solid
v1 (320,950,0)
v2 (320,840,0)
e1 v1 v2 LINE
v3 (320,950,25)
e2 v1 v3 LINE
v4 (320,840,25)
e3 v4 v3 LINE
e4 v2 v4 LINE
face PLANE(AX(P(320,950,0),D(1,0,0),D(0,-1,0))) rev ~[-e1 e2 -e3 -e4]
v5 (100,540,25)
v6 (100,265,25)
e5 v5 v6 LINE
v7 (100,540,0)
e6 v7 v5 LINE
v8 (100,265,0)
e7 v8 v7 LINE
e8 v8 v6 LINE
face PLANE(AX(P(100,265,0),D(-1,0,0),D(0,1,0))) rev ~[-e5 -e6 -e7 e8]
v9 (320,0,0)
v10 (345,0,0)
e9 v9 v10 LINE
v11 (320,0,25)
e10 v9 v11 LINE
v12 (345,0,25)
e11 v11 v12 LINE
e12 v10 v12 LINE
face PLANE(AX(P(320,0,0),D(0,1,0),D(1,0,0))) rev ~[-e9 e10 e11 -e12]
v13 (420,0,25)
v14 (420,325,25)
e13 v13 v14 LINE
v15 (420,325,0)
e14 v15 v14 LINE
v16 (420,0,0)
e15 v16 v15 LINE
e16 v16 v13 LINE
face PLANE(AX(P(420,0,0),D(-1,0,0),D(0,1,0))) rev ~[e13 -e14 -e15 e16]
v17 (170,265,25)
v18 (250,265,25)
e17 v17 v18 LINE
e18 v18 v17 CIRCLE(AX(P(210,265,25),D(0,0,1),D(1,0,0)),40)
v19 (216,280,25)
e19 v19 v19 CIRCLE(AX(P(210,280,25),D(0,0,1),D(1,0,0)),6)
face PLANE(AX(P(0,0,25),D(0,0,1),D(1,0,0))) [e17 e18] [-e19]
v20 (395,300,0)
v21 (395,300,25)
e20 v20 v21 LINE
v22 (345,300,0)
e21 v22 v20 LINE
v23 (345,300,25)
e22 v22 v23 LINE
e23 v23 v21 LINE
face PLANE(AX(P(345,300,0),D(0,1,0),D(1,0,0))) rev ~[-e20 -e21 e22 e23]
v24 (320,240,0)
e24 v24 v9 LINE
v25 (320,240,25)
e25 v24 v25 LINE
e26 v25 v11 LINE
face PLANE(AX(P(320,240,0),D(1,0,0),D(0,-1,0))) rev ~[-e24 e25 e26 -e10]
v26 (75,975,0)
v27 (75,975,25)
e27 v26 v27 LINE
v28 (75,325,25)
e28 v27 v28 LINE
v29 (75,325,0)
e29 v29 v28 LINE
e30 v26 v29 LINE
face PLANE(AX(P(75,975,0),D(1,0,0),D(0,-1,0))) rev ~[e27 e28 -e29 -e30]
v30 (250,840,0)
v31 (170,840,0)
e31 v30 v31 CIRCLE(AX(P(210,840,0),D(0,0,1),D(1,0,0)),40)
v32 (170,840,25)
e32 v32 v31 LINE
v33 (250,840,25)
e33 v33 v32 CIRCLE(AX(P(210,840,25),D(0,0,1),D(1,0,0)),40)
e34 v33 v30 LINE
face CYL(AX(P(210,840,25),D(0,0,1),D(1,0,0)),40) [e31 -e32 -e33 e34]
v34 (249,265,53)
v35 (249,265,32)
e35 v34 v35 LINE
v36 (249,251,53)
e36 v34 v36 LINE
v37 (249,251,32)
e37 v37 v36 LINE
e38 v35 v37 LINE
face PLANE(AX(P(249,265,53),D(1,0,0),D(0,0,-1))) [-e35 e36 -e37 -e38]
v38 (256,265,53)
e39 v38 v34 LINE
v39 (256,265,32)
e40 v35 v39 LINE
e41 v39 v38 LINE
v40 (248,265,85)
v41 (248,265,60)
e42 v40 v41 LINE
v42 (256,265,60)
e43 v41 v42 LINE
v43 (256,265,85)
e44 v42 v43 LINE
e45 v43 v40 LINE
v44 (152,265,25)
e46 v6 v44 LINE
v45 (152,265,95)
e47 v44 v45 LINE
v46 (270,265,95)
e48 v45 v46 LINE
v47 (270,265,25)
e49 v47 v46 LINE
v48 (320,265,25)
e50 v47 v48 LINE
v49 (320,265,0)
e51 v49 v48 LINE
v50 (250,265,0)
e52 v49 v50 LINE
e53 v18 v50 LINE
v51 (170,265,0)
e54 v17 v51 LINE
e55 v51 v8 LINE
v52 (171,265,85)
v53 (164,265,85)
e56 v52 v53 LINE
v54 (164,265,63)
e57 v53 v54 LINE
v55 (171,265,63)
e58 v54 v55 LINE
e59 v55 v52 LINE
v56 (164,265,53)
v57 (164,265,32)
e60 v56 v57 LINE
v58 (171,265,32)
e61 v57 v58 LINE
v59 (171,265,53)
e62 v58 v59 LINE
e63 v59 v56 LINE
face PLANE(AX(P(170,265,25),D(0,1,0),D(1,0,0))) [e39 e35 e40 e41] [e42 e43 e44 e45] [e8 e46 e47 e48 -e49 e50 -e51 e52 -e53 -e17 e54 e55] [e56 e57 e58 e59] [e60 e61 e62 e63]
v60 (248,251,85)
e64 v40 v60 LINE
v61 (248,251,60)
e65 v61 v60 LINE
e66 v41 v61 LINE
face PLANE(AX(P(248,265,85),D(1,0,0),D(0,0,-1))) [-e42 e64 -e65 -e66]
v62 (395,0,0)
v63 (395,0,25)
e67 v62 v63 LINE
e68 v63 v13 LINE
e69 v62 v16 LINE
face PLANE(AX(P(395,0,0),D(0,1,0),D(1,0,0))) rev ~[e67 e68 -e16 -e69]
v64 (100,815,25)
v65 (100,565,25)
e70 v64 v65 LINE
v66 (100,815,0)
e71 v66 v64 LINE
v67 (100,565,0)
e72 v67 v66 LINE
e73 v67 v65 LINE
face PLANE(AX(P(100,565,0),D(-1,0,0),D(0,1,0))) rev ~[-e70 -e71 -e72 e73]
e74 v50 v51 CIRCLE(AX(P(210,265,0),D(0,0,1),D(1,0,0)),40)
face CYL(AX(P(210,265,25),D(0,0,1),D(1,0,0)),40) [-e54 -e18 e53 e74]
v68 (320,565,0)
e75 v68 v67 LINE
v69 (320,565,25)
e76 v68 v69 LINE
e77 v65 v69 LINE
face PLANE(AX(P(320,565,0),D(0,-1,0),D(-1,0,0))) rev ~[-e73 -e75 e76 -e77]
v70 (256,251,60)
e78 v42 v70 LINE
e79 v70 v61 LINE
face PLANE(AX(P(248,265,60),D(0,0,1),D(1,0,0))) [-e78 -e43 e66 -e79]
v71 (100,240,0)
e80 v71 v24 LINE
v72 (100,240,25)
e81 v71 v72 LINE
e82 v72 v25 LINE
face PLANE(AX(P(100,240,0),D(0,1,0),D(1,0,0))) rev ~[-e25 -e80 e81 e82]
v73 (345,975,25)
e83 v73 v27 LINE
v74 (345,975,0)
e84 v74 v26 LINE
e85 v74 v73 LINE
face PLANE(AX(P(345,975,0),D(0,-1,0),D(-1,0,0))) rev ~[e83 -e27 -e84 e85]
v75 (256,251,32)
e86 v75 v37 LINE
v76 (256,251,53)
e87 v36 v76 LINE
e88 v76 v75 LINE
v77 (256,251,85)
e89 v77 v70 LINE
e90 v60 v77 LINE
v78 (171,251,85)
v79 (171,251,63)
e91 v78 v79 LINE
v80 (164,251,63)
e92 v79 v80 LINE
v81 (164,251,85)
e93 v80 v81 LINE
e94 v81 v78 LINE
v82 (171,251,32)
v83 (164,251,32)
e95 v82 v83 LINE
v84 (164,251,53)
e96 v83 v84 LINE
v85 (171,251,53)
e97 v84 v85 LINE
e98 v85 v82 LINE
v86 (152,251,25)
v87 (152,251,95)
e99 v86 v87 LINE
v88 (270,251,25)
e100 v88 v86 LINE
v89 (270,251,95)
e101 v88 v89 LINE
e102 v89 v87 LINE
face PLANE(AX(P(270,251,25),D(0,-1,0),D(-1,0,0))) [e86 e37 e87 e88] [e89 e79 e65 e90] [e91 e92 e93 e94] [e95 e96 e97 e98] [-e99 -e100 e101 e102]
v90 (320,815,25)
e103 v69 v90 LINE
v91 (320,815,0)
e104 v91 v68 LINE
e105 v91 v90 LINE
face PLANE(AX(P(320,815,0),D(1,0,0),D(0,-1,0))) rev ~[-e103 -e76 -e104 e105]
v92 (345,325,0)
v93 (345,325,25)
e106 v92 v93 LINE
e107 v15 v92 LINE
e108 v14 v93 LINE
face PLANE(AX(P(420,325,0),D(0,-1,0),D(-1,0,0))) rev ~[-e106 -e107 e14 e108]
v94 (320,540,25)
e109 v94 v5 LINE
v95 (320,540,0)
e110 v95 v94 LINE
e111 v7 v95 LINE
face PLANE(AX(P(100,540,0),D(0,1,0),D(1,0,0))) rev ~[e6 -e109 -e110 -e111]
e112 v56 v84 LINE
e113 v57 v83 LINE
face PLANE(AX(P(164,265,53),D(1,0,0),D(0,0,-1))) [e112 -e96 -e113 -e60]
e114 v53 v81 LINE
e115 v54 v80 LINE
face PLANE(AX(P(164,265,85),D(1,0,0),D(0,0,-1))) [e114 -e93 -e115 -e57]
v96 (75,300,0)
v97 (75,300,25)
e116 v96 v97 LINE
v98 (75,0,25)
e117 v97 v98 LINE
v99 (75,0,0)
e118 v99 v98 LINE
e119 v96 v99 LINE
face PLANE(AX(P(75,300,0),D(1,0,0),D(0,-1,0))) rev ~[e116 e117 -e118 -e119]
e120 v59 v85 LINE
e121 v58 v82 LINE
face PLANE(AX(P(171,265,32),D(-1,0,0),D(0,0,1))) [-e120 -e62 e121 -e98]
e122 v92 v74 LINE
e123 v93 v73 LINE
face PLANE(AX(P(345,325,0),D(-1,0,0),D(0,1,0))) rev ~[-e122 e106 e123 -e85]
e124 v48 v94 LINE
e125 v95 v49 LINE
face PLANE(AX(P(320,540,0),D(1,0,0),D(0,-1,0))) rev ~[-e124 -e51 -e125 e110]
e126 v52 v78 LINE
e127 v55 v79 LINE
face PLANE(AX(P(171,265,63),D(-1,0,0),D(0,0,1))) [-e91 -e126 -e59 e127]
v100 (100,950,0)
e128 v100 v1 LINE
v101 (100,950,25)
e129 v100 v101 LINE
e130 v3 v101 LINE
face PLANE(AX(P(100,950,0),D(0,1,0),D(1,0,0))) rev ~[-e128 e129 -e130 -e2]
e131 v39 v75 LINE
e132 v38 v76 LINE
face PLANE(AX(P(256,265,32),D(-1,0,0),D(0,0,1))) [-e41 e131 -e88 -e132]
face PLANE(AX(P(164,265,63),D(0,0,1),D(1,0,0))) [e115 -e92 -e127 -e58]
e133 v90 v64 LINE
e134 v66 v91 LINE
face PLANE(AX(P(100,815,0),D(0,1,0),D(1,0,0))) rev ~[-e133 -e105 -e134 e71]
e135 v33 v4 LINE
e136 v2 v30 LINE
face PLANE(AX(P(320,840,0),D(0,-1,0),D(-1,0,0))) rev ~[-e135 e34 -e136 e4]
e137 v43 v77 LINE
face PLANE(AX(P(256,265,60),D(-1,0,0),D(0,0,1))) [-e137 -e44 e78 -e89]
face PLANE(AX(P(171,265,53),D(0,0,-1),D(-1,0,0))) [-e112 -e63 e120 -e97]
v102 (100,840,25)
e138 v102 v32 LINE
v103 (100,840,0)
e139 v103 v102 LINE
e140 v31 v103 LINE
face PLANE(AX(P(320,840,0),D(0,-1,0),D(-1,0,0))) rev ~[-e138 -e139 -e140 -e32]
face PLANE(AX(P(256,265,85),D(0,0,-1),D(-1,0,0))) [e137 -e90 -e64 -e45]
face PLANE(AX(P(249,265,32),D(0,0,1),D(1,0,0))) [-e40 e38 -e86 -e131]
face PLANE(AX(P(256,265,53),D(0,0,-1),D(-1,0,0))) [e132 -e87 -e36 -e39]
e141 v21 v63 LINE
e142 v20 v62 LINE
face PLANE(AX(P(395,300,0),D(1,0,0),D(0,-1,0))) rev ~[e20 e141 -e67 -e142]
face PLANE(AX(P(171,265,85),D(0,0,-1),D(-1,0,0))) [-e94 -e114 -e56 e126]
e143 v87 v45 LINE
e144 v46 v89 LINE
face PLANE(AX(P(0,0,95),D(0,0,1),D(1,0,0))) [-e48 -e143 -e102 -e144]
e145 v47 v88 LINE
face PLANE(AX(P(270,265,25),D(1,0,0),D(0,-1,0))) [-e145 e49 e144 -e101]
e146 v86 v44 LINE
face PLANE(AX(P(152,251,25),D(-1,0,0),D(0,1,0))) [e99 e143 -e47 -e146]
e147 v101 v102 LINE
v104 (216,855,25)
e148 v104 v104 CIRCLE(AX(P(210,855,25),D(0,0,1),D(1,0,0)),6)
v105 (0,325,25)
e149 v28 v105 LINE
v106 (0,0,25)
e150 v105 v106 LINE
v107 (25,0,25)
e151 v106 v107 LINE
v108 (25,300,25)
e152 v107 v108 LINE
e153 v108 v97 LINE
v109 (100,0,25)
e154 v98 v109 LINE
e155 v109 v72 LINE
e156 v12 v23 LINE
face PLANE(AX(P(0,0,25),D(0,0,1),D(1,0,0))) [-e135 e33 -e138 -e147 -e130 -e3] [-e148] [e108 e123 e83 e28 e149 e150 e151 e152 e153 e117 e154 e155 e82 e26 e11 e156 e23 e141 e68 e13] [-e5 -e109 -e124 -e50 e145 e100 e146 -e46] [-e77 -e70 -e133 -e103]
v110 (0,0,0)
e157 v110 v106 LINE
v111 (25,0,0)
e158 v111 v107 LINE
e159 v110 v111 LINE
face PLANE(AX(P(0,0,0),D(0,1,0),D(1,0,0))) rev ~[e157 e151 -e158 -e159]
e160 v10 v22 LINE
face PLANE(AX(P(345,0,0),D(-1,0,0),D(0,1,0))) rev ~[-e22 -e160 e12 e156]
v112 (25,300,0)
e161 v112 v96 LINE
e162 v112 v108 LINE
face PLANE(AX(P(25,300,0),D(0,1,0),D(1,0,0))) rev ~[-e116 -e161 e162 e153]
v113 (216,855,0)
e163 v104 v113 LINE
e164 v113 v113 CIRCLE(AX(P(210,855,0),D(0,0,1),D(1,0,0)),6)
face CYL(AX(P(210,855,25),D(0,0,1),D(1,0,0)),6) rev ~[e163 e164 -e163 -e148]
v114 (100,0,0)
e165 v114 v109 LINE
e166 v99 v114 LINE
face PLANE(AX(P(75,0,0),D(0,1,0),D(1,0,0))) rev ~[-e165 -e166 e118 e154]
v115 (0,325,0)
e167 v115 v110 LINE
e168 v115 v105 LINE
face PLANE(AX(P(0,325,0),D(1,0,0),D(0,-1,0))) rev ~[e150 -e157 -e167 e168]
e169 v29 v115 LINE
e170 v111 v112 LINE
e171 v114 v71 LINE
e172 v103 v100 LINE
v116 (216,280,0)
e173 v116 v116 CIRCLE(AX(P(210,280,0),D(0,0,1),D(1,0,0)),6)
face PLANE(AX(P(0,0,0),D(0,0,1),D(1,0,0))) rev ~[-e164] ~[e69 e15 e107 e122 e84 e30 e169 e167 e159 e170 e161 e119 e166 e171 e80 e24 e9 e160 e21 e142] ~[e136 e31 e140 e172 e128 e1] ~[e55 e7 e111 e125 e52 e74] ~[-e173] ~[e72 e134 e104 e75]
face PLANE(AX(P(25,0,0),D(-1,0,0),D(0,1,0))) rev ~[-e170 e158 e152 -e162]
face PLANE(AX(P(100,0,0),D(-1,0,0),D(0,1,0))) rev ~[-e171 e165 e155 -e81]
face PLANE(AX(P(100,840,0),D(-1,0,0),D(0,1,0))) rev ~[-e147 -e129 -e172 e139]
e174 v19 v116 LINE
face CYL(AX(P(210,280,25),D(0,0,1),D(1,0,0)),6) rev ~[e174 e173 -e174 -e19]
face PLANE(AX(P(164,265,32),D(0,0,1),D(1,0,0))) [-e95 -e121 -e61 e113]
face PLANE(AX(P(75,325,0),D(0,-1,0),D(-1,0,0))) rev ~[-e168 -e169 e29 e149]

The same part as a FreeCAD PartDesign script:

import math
import FreeCAD as App
import Part
import Sketcher


def add_polygon(sketch, points):
    """Adds a closed chain of lines whose ends are joined by coincident constraints."""
    first, n = sketch.GeometryCount, len(points)
    for a, b in zip(points, points[1:] + points[:1]):
        sketch.addGeometry(Part.LineSegment(App.Vector(*a, 0), App.Vector(*b, 0)), False)
    for i in range(n):
        sketch.addConstraint(Sketcher.Constraint("Coincident", first + i, 2, first + (i + 1) % n, 1))

doc = App.newDocument("Part")
body = doc.addObject("PartDesign::Body", "Body")

sketch1 = body.newObject("Sketcher::SketchObject", "Sketch")
sketch1.AttachmentSupport = (doc.getObject("XY_Plane"), [""])
sketch1.MapMode = "FlatFace"
add_polygon(sketch1, [(0, 325), (0, 0), (25, 0), (25, 300), (75, 300), (75, 0), (100, 0), (100, 240), (320, 240), (320, 0), (345, 0), (345, 300), (395, 300), (395, 0), (420, 0), (420, 325), (345, 325), (345, 975), (75, 975), (75, 325)])
sketch1.addConstraint([
    Sketcher.Constraint("Vertical", 0),
    Sketcher.Constraint("Horizontal", 1),
    Sketcher.Constraint("Vertical", 2),
    Sketcher.Constraint("Horizontal", 3),
    Sketcher.Constraint("Vertical", 4),
    Sketcher.Constraint("Horizontal", 5),
    Sketcher.Constraint("Vertical", 6),
    Sketcher.Constraint("Horizontal", 7),
    Sketcher.Constraint("Vertical", 8),
    Sketcher.Constraint("Horizontal", 9),
    Sketcher.Constraint("Vertical", 10),
    Sketcher.Constraint("Horizontal", 11),
    Sketcher.Constraint("Vertical", 12),
    Sketcher.Constraint("Horizontal", 13),
    Sketcher.Constraint("Vertical", 14),
    Sketcher.Constraint("Horizontal", 15),
    Sketcher.Constraint("Vertical", 16),
    Sketcher.Constraint("Horizontal", 17),
    Sketcher.Constraint("Vertical", 18),
    Sketcher.Constraint("Horizontal", 19),
    Sketcher.Constraint("Coincident", 0, 2, -1, 1),
    Sketcher.Constraint("PointOnObject", 4, 2, -1),
    Sketcher.Constraint("PointOnObject", 8, 2, -1),
    Sketcher.Constraint("PointOnObject", 12, 2, -1),
    Sketcher.Constraint("Horizontal", 3, 2, 10, 2),
    Sketcher.Constraint("Horizontal", 15, 2, 18, 2),
    Sketcher.Constraint("Vertical", 10, 2, 15, 2),
    Sketcher.Constraint("Vertical", 4, 2, 17, 2),
    Sketcher.Constraint("Equal", 1, 5),
    Sketcher.Constraint("Equal", 5, 9),
    Sketcher.Constraint("Equal", 3, 11),
    Sketcher.Constraint("Equal", 9, 13),
    Sketcher.Constraint("DistanceX", 1, 1, 1, 2, 25.0),
    Sketcher.Constraint("DistanceX", 3, 1, 3, 2, 50.0),
    Sketcher.Constraint("DistanceX", 7, 1, 7, 2, 220.0),
    Sketcher.Constraint("DistanceY", 0, 2, 0, 1, 325.0),
    Sketcher.Constraint("DistanceY", 2, 1, 2, 2, 300.0),
    Sketcher.Constraint("DistanceY", 6, 1, 6, 2, 240.0),
    Sketcher.Constraint("DistanceY", 16, 1, 16, 2, 650.0),
])
pad1 = body.newObject("PartDesign::Pad", "Pad")
pad1.Profile = sketch1
pad1.Length = 25

sketch2 = body.newObject("Sketcher::SketchObject", "Sketch001")
sketch2.AttachmentSupport = (doc.getObject("XY_Plane"), [""])
sketch2.MapMode = "FlatFace"
add_polygon(sketch2, [(320, 950), (100, 950), (100, 840), (320, 840)])
add_polygon(sketch2, [(320, 815), (100, 815), (100, 565), (320, 565)])
add_polygon(sketch2, [(320, 540), (100, 540), (100, 265), (320, 265)])
sketch2.addConstraint([
    Sketcher.Constraint("Horizontal", 0),
    Sketcher.Constraint("Vertical", 1),
    Sketcher.Constraint("Horizontal", 2),
    Sketcher.Constraint("Vertical", 3),
    Sketcher.Constraint("Horizontal", 4),
    Sketcher.Constraint("Vertical", 5),
    Sketcher.Constraint("Horizontal", 6),
    Sketcher.Constraint("Vertical", 7),
    Sketcher.Constraint("Horizontal", 8),
    Sketcher.Constraint("Vertical", 9),
    Sketcher.Constraint("Horizontal", 10),
    Sketcher.Constraint("Vertical", 11),
    Sketcher.Constraint("Vertical", 1, 2, 4, 2),
    Sketcher.Constraint("Vertical", 3, 2, 6, 2),
    Sketcher.Constraint("Vertical", 5, 2, 8, 2),
    Sketcher.Constraint("Vertical", 7, 2, 10, 2),
    Sketcher.Constraint("DistanceX", 0, 2, 0, 1, 220.0),
    Sketcher.Constraint("DistanceY", 1, 2, 1, 1, 110.0),
    Sketcher.Constraint("DistanceY", 5, 2, 5, 1, 250.0),
    Sketcher.Constraint("DistanceY", 9, 2, 9, 1, 275.0),
    Sketcher.Constraint("DistanceY", 5, 2, 1, 2, 275.0),
    Sketcher.Constraint("DistanceY", 8, 2, 4, 2, 275.0),
    Sketcher.Constraint("DistanceX", -1, 1, 0, 2, 100.0),
    Sketcher.Constraint("DistanceY", -1, 1, 0, 2, 950.0),
])
pocket1 = body.newObject("PartDesign::Pocket", "Pocket")
pocket1.Profile = sketch2
pocket1.Type = "ThroughAll"
pocket1.Reversed = True

sketch3 = body.newObject("Sketcher::SketchObject", "Sketch002")
sketch3.AttachmentSupport = (doc.getObject("XY_Plane"), [""])
sketch3.MapMode = "FlatFace"
sketch3.AttachmentOffset = App.Placement(App.Vector(0, 0, 25), App.Rotation())
sketch3.addGeometry([
    Part.ArcOfCircle(Part.Circle(App.Vector(210, 840, 0), App.Vector(0, 0, 1), 40), math.radians(0), math.radians(180)),
    Part.LineSegment(App.Vector(170, 840, 0), App.Vector(250, 840, 0)),
], False)
sketch3.addConstraint([
    Sketcher.Constraint("Coincident", 0, 1, 1, 2),
    Sketcher.Constraint("Coincident", 1, 1, 0, 2),
    Sketcher.Constraint("Horizontal", 1),
    Sketcher.Constraint("Radius", 0, 40.0),
    Sketcher.Constraint("DistanceX", -1, 1, 0, 3, 210.0),
    Sketcher.Constraint("DistanceY", -1, 1, 0, 3, 840.0),
    Sketcher.Constraint("DistanceY", -1, 1, 0, 1, 840.0),
])
pad2 = body.newObject("PartDesign::Pad", "Pad001")
pad2.Profile = sketch3
pad2.Length = 25
pad2.Reversed = True

sketch4 = body.newObject("Sketcher::SketchObject", "Sketch003")
sketch4.AttachmentSupport = (doc.getObject("XY_Plane"), [""])
sketch4.MapMode = "FlatFace"
sketch4.AttachmentOffset = App.Placement(App.Vector(0, 0, 25), App.Rotation())
sketch4.addGeometry([
    Part.LineSegment(App.Vector(170, 265, 0), App.Vector(250, 265, 0)),
    Part.ArcOfCircle(Part.Circle(App.Vector(210, 265, 0), App.Vector(0, 0, 1), 40), math.radians(0), math.radians(180)),
], False)
sketch4.addConstraint([
    Sketcher.Constraint("Coincident", 0, 1, 1, 2),
    Sketcher.Constraint("Coincident", 1, 1, 0, 2),
    Sketcher.Constraint("Horizontal", 0),
    Sketcher.Constraint("Horizontal", 1, 3, 0, 1),
    Sketcher.Constraint("Radius", 1, 40.0),
    Sketcher.Constraint("DistanceX", -1, 1, 1, 3, 210.0),
    Sketcher.Constraint("DistanceY", -1, 1, 1, 3, 265.0),
])
pad3 = body.newObject("PartDesign::Pad", "Pad002")
pad3.Profile = sketch4
pad3.Length = 25
pad3.Reversed = True

sketch5 = body.newObject("Sketcher::SketchObject", "Sketch004")
sketch5.AttachmentSupport = (doc.getObject("XY_Plane"), [""])
sketch5.MapMode = "FlatFace"
sketch5.AttachmentOffset = App.Placement(App.Vector(0, 0, 25), App.Rotation())
add_polygon(sketch5, [(270, 265), (152, 265), (152, 251), (270, 251)])
sketch5.addConstraint([
    Sketcher.Constraint("Horizontal", 0),
    Sketcher.Constraint("Vertical", 1),
    Sketcher.Constraint("Horizontal", 2),
    Sketcher.Constraint("Vertical", 3),
    Sketcher.Constraint("DistanceX", 0, 2, 0, 1, 118.0),
    Sketcher.Constraint("DistanceY", 1, 2, 1, 1, 14.0),
    Sketcher.Constraint("DistanceX", -1, 1, 0, 2, 152.0),
    Sketcher.Constraint("DistanceY", -1, 1, 0, 2, 265.0),
])
pad4 = body.newObject("PartDesign::Pad", "Pad003")
pad4.Profile = sketch5
pad4.Length = 70

sketch6 = body.newObject("Sketcher::SketchObject", "Sketch005")
sketch6.AttachmentSupport = (doc.getObject("XZ_Plane"), [""])
sketch6.MapMode = "FlatFace"
sketch6.AttachmentOffset = App.Placement(App.Vector(0, 0, -265), App.Rotation())
add_polygon(sketch6, [(171, 32), (164, 32), (164, 53), (171, 53)])
add_polygon(sketch6, [(171, 63), (164, 63), (164, 85), (171, 85)])
add_polygon(sketch6, [(256, 32), (249, 32), (249, 53), (256, 53)])
add_polygon(sketch6, [(256, 60), (248, 60), (248, 85), (256, 85)])
sketch6.addConstraint([
    Sketcher.Constraint("Horizontal", 0),
    Sketcher.Constraint("Vertical", 1),
    Sketcher.Constraint("Horizontal", 2),
    Sketcher.Constraint("Vertical", 3),
    Sketcher.Constraint("Horizontal", 4),
    Sketcher.Constraint("Vertical", 5),
    Sketcher.Constraint("Horizontal", 6),
    Sketcher.Constraint("Vertical", 7),
    Sketcher.Constraint("Horizontal", 8),
    Sketcher.Constraint("Vertical", 9),
    Sketcher.Constraint("Horizontal", 10),
    Sketcher.Constraint("Vertical", 11),
    Sketcher.Constraint("Horizontal", 12),
    Sketcher.Constraint("Vertical", 13),
    Sketcher.Constraint("Horizontal", 14),
    Sketcher.Constraint("Vertical", 15),
    Sketcher.Constraint("Horizontal", 3, 2, 8, 2),
    Sketcher.Constraint("Horizontal", 2, 2, 9, 2),
    Sketcher.Constraint("Horizontal", 6, 2, 13, 2),
    Sketcher.Constraint("Vertical", 1, 2, 4, 2),
    Sketcher.Constraint("Vertical", 3, 2, 6, 2),
    Sketcher.Constraint("Vertical", 11, 2, 14, 2),
    Sketcher.Constraint("Equal", 6, 8),
    Sketcher.Constraint("DistanceX", 0, 2, 0, 1, 7.0),
    Sketcher.Constraint("DistanceX", 12, 2, 12, 1, 8.0),
    Sketcher.Constraint("DistanceY", 1, 1, 1, 2, 21.0),
    Sketcher.Constraint("DistanceY", 5, 1, 5, 2, 22.0),
    Sketcher.Constraint("DistanceY", 13, 1, 13, 2, 25.0),
    Sketcher.Constraint("DistanceX", -1, 1, 0, 2, 164.0),
    Sketcher.Constraint("DistanceY", -1, 1, 0, 2, 32.0),
    Sketcher.Constraint("DistanceY", -1, 1, 4, 2, 63.0),
    Sketcher.Constraint("DistanceX", -1, 1, 8, 2, 249.0),
])
pocket2 = body.newObject("PartDesign::Pocket", "Pocket001")
pocket2.Profile = sketch6
pocket2.Type = "ThroughAll"
pocket2.Reversed = True

sketch7 = body.newObject("Sketcher::SketchObject", "Sketch006")
sketch7.AttachmentSupport = (doc.getObject("XY_Plane"), [""])
sketch7.MapMode = "FlatFace"
sketch7.AttachmentOffset = App.Placement(App.Vector(0, 0, 25), App.Rotation())
sketch7.addGeometry(Part.Circle(App.Vector(210, 855, 0), App.Vector(0, 0, 1), 6), False)
sketch7.addConstraint([
    Sketcher.Constraint("Diameter", 0, 12.0),
    Sketcher.Constraint("DistanceX", -1, 1, 0, 3, 210.0),
    Sketcher.Constraint("DistanceY", -1, 1, 0, 3, 855.0),
])
pocket3 = body.newObject("PartDesign::Pocket", "Pocket002")
pocket3.Profile = sketch7
pocket3.Type = "ThroughAll"

sketch8 = body.newObject("Sketcher::SketchObject", "Sketch007")
sketch8.AttachmentSupport = (doc.getObject("XY_Plane"), [""])
sketch8.MapMode = "FlatFace"
sketch8.AttachmentOffset = App.Placement(App.Vector(0, 0, 25), App.Rotation())
sketch8.addGeometry(Part.Circle(App.Vector(210, 280, 0), App.Vector(0, 0, 1), 6), False)
sketch8.addConstraint([
    Sketcher.Constraint("Diameter", 0, 12.0),
    Sketcher.Constraint("DistanceX", -1, 1, 0, 3, 210.0),
    Sketcher.Constraint("DistanceY", -1, 1, 0, 3, 280.0),
])
pocket4 = body.newObject("PartDesign::Pocket", "Pocket003")
pocket4.Profile = sketch8
pocket4.Type = "ThroughAll"

doc.recompute()
